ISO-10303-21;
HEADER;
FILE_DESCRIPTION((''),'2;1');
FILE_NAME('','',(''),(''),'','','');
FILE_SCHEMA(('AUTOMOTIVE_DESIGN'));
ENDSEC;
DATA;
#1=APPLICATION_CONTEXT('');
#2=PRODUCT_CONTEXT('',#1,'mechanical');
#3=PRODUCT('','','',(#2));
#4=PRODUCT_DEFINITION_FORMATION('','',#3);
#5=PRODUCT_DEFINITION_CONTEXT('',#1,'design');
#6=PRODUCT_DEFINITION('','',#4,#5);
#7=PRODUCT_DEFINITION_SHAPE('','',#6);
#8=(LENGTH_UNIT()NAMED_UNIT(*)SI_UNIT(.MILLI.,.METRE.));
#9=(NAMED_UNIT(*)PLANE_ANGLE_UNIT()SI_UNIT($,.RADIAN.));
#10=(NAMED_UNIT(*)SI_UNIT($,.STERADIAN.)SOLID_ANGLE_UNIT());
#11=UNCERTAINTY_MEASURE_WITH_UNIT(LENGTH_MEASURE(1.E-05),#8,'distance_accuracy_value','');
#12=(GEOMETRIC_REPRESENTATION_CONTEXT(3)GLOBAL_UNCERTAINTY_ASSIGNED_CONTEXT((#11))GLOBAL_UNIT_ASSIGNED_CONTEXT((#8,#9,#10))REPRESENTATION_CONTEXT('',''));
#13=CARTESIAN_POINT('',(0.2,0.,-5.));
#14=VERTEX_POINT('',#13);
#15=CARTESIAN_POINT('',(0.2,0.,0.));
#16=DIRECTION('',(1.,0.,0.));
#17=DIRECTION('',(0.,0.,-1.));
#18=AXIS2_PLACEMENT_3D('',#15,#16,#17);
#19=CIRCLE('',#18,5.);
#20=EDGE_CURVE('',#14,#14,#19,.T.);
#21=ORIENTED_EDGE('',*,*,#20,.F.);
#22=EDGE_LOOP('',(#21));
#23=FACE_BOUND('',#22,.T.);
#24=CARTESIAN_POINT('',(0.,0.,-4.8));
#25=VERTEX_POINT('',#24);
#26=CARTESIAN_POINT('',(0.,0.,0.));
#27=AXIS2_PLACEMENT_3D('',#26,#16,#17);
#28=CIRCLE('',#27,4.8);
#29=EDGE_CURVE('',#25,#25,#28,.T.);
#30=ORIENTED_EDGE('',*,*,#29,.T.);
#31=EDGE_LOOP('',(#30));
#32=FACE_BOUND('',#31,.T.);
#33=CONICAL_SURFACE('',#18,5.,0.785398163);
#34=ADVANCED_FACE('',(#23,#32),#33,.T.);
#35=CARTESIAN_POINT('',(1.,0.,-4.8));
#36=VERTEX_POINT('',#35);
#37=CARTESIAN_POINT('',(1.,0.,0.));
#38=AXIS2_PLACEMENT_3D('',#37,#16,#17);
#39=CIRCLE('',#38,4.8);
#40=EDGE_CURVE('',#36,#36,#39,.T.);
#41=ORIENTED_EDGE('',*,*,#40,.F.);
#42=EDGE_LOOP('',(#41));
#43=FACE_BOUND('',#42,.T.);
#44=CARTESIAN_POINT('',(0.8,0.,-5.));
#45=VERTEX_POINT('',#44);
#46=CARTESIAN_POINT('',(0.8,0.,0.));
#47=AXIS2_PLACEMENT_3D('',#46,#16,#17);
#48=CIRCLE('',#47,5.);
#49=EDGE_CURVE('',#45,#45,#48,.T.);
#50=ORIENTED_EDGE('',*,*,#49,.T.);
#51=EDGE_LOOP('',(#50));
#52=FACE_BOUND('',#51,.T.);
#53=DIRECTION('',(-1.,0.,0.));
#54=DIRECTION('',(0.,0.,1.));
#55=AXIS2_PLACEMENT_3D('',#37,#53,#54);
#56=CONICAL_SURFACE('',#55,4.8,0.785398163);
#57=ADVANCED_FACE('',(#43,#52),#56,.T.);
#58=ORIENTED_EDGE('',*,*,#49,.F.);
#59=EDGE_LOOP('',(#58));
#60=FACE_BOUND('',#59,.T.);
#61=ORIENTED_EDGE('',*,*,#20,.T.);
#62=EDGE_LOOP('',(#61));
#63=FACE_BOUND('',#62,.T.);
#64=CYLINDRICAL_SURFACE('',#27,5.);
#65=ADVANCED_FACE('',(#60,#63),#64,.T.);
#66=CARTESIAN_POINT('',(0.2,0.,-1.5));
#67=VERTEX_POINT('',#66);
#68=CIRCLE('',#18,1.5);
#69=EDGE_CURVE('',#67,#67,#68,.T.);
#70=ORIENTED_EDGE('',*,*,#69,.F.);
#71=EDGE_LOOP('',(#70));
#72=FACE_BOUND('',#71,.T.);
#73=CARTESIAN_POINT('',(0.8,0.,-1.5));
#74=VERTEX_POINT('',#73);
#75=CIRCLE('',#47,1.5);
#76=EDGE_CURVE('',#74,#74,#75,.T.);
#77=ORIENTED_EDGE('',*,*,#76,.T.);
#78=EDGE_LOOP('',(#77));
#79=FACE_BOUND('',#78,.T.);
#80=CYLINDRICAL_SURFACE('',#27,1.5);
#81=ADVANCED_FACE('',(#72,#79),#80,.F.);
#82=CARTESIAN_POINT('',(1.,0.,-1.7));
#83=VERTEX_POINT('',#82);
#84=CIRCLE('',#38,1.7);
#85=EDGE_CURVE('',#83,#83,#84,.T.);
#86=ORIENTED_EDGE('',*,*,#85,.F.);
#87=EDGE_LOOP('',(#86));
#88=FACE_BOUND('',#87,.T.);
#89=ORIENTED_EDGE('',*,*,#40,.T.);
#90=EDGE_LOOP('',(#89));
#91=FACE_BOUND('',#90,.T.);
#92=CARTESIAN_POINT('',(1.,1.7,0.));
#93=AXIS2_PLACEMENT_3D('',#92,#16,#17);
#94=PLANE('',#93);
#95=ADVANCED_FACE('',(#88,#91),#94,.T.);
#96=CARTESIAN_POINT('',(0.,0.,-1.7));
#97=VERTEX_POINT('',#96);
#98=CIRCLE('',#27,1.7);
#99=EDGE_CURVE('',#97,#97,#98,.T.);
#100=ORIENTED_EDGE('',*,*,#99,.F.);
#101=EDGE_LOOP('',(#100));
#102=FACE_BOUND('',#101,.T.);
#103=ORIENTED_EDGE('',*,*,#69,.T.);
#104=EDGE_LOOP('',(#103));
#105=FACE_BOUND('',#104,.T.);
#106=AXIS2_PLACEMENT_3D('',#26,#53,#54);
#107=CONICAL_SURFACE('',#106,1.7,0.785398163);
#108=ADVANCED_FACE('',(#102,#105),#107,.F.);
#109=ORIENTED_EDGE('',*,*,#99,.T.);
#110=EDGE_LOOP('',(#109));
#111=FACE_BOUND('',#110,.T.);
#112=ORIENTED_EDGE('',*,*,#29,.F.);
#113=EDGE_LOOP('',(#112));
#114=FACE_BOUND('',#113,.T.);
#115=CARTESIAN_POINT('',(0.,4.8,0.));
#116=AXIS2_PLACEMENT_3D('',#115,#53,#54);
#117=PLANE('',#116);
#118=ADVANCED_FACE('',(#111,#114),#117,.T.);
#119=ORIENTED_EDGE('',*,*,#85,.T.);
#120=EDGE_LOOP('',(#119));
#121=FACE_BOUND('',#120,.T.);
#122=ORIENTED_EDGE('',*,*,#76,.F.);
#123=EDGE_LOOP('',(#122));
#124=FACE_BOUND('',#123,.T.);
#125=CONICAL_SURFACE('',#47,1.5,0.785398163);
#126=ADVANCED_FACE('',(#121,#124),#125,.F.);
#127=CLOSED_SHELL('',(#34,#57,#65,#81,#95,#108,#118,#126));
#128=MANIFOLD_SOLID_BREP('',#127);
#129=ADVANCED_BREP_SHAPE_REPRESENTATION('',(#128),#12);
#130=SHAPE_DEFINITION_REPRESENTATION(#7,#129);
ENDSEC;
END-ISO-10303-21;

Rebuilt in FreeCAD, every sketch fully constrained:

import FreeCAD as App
import Part
import Sketcher
from FreeCAD import Vector
Q = App.Units.Quantity


def add_polygon(sketch, points):
    """Adds a closed chain of lines whose ends are joined by coincident constraints."""
    first, n = sketch.GeometryCount, len(points)
    for a, b in zip(points, points[1:] + points[:1]):
        sketch.addGeometry(Part.LineSegment(App.Vector(*a, 0), App.Vector(*b, 0)), False)
    for i in range(n):
        sketch.addConstraint(Sketcher.Constraint("Coincident", first + i, 2, first + (i + 1) % n, 1))

doc = App.newDocument("Part")
body = doc.addObject("PartDesign::Body", "Body")

sketch1 = doc.addObject("Sketcher::SketchObject", "Sketch")
body.addObject(sketch1)
sketch1.AttachmentSupport = (doc.XY_Plane, [""])
sketch1.MapMode = "FlatFace"
add_polygon(sketch1, [(0, 4.8), (0, 1.7), (0.2, 1.5), (0.8, 1.5), (1, 1.7), (1, 4.8), (0.8, 5), (0.2, 5)])
sketch1.addConstraint([
    Sketcher.Constraint("Vertical", 0),
    Sketcher.Constraint("Horizontal", 2),
    Sketcher.Constraint("Vertical", 4),
    Sketcher.Constraint("Horizontal", 6),
    Sketcher.Constraint("PointOnObject", 0, 2, -2),
    Sketcher.Constraint("Perpendicular", 1, 3),
    Sketcher.Constraint("Perpendicular", 3, 5),
    Sketcher.Constraint("Perpendicular", 5, 7),
    Sketcher.Constraint("Horizontal", 0, 2, 3, 2),
    Sketcher.Constraint("Horizontal", 4, 2, 7, 2),
    Sketcher.Constraint("Vertical", 2, 2, 5, 2),
    Sketcher.Constraint("Vertical", 1, 2, 6, 2),
    Sketcher.Constraint("DistanceX", 2, 1, 2, 2, Q("0.6 mm")),
    Sketcher.Constraint("DistanceY", 0, 2, 0, 1, Q("3.1 mm")),
    Sketcher.Constraint("DistanceX", -1, 1, 3, 2, Q("1 mm")),
    Sketcher.Constraint("DistanceY", -1, 1, 5, 2, Q("5 mm")),
])
revolution = doc.addObject("PartDesign::Revolution", "Revolution")
body.addObject(revolution)
revolution.Profile = sketch1
revolution.ReferenceAxis = (sketch1, ["H_Axis"])
revolution.Angle = 360

doc.recompute()
